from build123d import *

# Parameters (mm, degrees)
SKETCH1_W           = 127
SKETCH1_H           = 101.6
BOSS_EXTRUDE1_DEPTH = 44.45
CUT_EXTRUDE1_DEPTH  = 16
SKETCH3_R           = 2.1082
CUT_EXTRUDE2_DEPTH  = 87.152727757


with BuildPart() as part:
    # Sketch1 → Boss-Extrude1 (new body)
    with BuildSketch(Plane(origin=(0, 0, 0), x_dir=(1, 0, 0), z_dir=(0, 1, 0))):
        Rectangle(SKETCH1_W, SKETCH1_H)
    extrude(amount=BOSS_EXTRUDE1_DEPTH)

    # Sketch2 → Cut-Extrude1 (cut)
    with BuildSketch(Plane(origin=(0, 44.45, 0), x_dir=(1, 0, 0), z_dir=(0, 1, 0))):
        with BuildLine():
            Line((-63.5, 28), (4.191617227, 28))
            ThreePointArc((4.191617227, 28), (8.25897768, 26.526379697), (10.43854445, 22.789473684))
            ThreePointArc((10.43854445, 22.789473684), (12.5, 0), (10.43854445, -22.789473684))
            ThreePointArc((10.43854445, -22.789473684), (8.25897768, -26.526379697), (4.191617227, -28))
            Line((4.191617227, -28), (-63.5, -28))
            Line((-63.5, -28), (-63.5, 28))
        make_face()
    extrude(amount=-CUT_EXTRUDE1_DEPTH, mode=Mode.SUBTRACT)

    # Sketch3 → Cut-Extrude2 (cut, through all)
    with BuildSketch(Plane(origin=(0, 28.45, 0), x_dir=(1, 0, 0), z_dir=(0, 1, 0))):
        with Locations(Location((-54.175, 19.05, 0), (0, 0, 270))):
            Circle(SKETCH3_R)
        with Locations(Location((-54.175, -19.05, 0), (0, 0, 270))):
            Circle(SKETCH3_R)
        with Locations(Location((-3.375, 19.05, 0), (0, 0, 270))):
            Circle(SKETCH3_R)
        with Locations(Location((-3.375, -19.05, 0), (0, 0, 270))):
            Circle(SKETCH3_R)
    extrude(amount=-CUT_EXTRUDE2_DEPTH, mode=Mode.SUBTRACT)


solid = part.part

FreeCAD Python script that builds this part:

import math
import FreeCAD as App
import Part
import Sketcher
Q = App.Units.Quantity


def add_polygon(sketch, points):
    """Adds a closed chain of lines whose ends are joined by coincident constraints."""
    first, n = sketch.GeometryCount, len(points)
    for a, b in zip(points, points[1:] + points[:1]):
        sketch.addGeometry(Part.LineSegment(App.Vector(*a, 0), App.Vector(*b, 0)), False)
    for i in range(n):
        sketch.addConstraint(Sketcher.Constraint("Coincident", first + i, 2, first + (i + 1) % n, 1))

doc = App.newDocument("Part")
params = doc.addObject("Spreadsheet::Sheet", "Params")
for row, (alias, value) in enumerate([
    ("sketch1_width", "5 in"),
    ("sketch1_height", "4 in"),
    ("pad1_length", "1.75 in"),
    ("sketch2_radius", "5 in"),
    ("sketch2_radius2", "0.25 in"),
    ("pocket1_length", "16 mm"),
    ("sketch3_diameter", "0.166 in"),
], start=1):
    params.set(f"A{row}", alias)
    params.set(f"B{row}", "=" + value)
    params.setAlias(f"B{row}", alias)

body = doc.addObject("PartDesign::Body", "Body")

sketch1 = body.newObject("Sketcher::SketchObject", "Sketch")
sketch1.AttachmentSupport = (doc.getObject("XZ_Plane"), [""])
sketch1.MapMode = "FlatFace"
add_polygon(sketch1, [(-63.5, -50.8), (-63.5, 50.8), (63.5, 50.8), (63.5, -50.8)])
sketch1.addConstraint([
    Sketcher.Constraint("Vertical", 0),
    Sketcher.Constraint("Horizontal", 1),
    Sketcher.Constraint("Vertical", 2),
    Sketcher.Constraint("Horizontal", 3),
    Sketcher.Constraint("Symmetric", 0, 2, 2, 2, -1, 1),
    Sketcher.Constraint("DistanceX", 1, 1, 1, 2, Q("5 in")),
    Sketcher.Constraint("DistanceY", 0, 1, 0, 2, Q("4 in")),
])
sketch1.setExpression("Constraints[9]", "Params.sketch1_width")
sketch1.setExpression("Constraints[10]", "Params.sketch1_height")
pad1 = body.newObject("PartDesign::Pad", "Pad")
pad1.Profile = sketch1
pad1.setExpression("Length", "Params.pad1_length")
pad1.Reversed = True

sketch2 = body.newObject("Sketcher::SketchObject", "Sketch001")
sketch2.AttachmentSupport = (doc.getObject("XZ_Plane"), [""])
sketch2.MapMode = "FlatFace"
sketch2.AttachmentOffset = App.Placement(App.Vector(0, 0, -1.75 * 25.4), App.Rotation())
sketch2.addGeometry([
    Part.LineSegment(App.Vector(4.191617, -28, 0), App.Vector(-63.5, -28, 0)),
    Part.LineSegment(App.Vector(-63.5, -28, 0), App.Vector(-63.5, 28, 0)),
    Part.LineSegment(App.Vector(-63.5, 28, 0), App.Vector(4.191617, 28, 0)),
    Part.ArcOfCircle(Part.Circle(App.Vector(4.191617, 21.65, 0), App.Vector(0, 0, 1), 6.35), math.radians(10.337415), math.radians(90)),
    Part.ArcOfCircle(Part.Circle(App.Vector(-114.5, 0, 0), App.Vector(0, 0, 1), 127), math.radians(-10.337415), math.radians(10.337415)),
    Part.ArcOfCircle(Part.Circle(App.Vector(4.191617, -21.65, 0), App.Vector(0, 0, 1), 6.35), math.radians(-90), math.radians(-10.337415)),
], False)
sketch2.addConstraint([
    Sketcher.Constraint("Coincident", 0, 2, 1, 1),
    Sketcher.Constraint("Coincident", 1, 2, 2, 1),
    Sketcher.Constraint("Tangent", 2, 2, 3, 2),
    Sketcher.Constraint("Tangent", 3, 1, 4, 2),
    Sketcher.Constraint("Tangent", 4, 1, 5, 2),
    Sketcher.Constraint("Tangent", 5, 1, 0, 1),
    Sketcher.Constraint("Horizontal", 0),
    Sketcher.Constraint("Vertical", 1),
    Sketcher.Constraint("Horizontal", 2),
    Sketcher.Constraint("Equal", 3, 5),
    Sketcher.Constraint("Symmetric", 3, 3, 5, 3, -1),
    Sketcher.Constraint("Radius", 4, Q("5 in")),
    Sketcher.Constraint("Radius", 3, Q("0.25 in")),
    Sketcher.Constraint("DistanceX", 0, 2, -1, 1, Q("2.5 in")),
    Sketcher.Constraint("DistanceY", 1, 1, 1, 2, Q("56 mm")),
    Sketcher.Constraint("DistanceX", 4, 3, -1, 1, Q("114.5 mm")),
])
sketch2.setExpression("Constraints[11]", "Params.sketch2_radius")
sketch2.setExpression("Constraints[12]", "Params.sketch2_radius2")
pocket1 = body.newObject("PartDesign::Pocket", "Pocket")
pocket1.Profile = sketch2
pocket1.setExpression("Length", "Params.pocket1_length")
pocket1.Reversed = True

sketch3 = body.newObject("Sketcher::SketchObject", "Sketch002")
sketch3.AttachmentSupport = (doc.getObject("XZ_Plane"), [""])
sketch3.MapMode = "FlatFace"
sketch3.AttachmentOffset = App.Placement(App.Vector(0, 0, -28.45), App.Rotation())
sketch3.addGeometry([
    Part.Circle(App.Vector(-54.175, -19.05, 0), App.Vector(0, 0, 1), 2.1082),
    Part.Circle(App.Vector(-54.175, 19.05, 0), App.Vector(0, 0, 1), 2.1082),
    Part.Circle(App.Vector(-3.375, -19.05, 0), App.Vector(0, 0, 1), 2.1082),
    Part.Circle(App.Vector(-3.375, 19.05, 0), App.Vector(0, 0, 1), 2.1082),
], False)
sketch3.addConstraint([
    Sketcher.Constraint("Equal", 0, 1),
    Sketcher.Constraint("Equal", 1, 2),
    Sketcher.Constraint("Equal", 2, 3),
    Sketcher.Constraint("Symmetric", 0, 3, 1, 3, -1),
    Sketcher.Constraint("Symmetric", 2, 3, 3, 3, -1),
    Sketcher.Constraint("Horizontal", 0, 3, 2, 3),
    Sketcher.Constraint("Diameter", 0, Q("0.166 in")),
    Sketcher.Constraint("DistanceX", 0, 3, 2, 3, Q("2 in")),
    Sketcher.Constraint("DistanceY", 0, 3, 1, 3, Q("1.5 in")),
    Sketcher.Constraint("DistanceX", 0, 3, -1, 1, Q("54.175 mm")),
])
sketch3.setExpression("Constraints[6]", "Params.sketch3_diameter")
pocket2 = body.newObject("PartDesign::Pocket", "Pocket001")
pocket2.Profile = sketch3
pocket2.Type = "ThroughAll"
pocket2.Reversed = True

doc.recompute()
